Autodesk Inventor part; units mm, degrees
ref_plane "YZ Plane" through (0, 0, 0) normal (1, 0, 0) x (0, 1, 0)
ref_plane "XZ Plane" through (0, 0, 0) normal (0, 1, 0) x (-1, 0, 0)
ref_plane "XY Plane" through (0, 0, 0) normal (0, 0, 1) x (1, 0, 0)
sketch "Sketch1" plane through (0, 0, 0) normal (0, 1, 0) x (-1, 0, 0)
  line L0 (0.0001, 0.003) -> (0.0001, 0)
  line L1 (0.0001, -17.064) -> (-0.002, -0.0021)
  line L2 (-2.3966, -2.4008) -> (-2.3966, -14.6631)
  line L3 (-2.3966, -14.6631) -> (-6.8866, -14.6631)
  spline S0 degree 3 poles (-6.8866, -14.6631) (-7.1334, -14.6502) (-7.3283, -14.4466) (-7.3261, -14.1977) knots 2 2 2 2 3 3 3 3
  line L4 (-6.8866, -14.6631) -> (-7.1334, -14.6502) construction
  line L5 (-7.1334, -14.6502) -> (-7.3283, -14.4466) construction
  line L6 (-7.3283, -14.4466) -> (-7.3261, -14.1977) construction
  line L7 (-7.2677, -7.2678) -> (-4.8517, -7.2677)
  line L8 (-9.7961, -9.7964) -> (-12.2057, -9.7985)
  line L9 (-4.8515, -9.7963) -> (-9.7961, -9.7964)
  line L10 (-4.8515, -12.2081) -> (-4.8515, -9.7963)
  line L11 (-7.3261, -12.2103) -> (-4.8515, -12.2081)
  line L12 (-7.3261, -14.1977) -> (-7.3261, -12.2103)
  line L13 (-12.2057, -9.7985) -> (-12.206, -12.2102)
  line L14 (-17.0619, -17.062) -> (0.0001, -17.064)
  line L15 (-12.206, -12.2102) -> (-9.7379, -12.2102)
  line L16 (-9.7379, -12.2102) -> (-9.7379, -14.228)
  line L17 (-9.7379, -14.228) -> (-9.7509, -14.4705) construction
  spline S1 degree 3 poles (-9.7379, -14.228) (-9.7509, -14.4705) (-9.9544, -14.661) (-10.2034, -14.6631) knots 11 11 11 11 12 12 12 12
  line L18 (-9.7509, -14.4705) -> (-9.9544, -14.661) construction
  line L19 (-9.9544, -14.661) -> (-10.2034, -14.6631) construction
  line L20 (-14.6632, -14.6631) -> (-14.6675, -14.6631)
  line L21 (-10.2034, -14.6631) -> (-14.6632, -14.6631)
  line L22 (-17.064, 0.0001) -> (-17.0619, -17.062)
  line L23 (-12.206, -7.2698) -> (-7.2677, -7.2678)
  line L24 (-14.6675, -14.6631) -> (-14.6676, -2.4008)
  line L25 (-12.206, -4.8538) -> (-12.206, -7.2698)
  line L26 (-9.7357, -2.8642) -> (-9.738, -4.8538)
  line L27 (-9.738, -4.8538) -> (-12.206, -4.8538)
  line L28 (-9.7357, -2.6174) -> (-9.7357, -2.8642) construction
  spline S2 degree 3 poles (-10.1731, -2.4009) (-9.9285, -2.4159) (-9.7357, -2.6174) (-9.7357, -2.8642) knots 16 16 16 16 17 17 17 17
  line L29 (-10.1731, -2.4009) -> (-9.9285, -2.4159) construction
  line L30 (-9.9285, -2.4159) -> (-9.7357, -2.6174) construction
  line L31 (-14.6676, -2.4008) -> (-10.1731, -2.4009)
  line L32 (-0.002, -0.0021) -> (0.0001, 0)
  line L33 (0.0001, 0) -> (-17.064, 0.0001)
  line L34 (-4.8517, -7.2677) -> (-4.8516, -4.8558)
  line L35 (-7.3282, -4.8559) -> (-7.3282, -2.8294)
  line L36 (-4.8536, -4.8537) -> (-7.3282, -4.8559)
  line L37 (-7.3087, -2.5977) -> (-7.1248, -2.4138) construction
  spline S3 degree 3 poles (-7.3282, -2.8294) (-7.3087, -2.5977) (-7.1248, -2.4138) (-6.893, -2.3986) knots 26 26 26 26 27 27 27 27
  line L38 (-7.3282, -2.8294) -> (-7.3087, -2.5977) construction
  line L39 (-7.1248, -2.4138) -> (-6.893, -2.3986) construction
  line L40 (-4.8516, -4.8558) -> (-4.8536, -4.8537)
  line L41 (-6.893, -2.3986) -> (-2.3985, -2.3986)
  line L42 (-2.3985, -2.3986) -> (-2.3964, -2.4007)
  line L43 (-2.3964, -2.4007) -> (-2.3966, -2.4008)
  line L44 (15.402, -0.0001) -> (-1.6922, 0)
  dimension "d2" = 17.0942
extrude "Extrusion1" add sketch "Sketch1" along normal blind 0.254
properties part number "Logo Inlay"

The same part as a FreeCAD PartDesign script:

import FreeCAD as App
import Part
import Sketcher
from FreeCAD import Vector
Q = App.Units.Quantity


def add_polygon(sketch, points):
    """Adds a closed chain of lines whose ends are joined by coincident constraints."""
    first, n = sketch.GeometryCount, len(points)
    for a, b in zip(points, points[1:] + points[:1]):
        sketch.addGeometry(Part.LineSegment(App.Vector(*a, 0), App.Vector(*b, 0)), False)
    for i in range(n):
        sketch.addConstraint(Sketcher.Constraint("Coincident", first + i, 2, first + (i + 1) % n, 1))

doc = App.newDocument("Part")
body = doc.addObject("PartDesign::Body", "Body")

# Sketch on XZ plane
sketch1 = body.newObject("Sketcher::SketchObject", "Sketch")
sketch1.AttachmentSupport = (doc.getObject("XZ_Plane"), [""])
sketch1.MapMode = "FlatFace"
add_polygon(sketch1, [(17.0619, -17.062), (-0.0001, -17.064), (0.002, -0.0021), (-0.0001, 0), (17.064, 0.0001)])  # lines 0-4
sketch1.addGeometry(Part.LineSegment(Vector(2.3985, -2.3986, 0), Vector(2.3966, -2.4008, 0)), False)  # 5
sketch1.addGeometry(Part.LineSegment(Vector(2.3966, -2.4008, 0), Vector(2.3966, -14.6631, 0)), False)  # 6
sketch1.addGeometry(Part.LineSegment(Vector(2.3966, -14.6631, 0), Vector(6.8866, -14.6631, 0)), False)  # 7
sketch1.addGeometry(Part.BSplineCurve([Vector(6.8866, -14.6631, 0), Vector(7.1334, -14.6502, 0), Vector(7.3283, -14.4466, 0), Vector(7.3261, -14.1977, 0)], [4, 4], [2, 3], False, 3, [1, 1, 1, 1], False), False)  # 8
sketch1.addGeometry(Part.LineSegment(Vector(7.3261, -14.1977, 0), Vector(7.3261, -12.2103, 0)), False)  # 9
sketch1.addGeometry(Part.LineSegment(Vector(7.3261, -12.2103, 0), Vector(4.8515, -12.2081, 0)), False)  # 10
sketch1.addGeometry(Part.LineSegment(Vector(4.8515, -12.2081, 0), Vector(4.8515, -9.7963, 0)), False)  # 11
sketch1.addGeometry(Part.LineSegment(Vector(4.8515, -9.7963, 0), Vector(9.7961, -9.7964, 0)), False)  # 12
sketch1.addGeometry(Part.LineSegment(Vector(9.7961, -9.7964, 0), Vector(12.2057, -9.7985, 0)), False)  # 13
sketch1.addGeometry(Part.LineSegment(Vector(12.2057, -9.7985, 0), Vector(12.206, -12.2102, 0)), False)  # 14
sketch1.addGeometry(Part.LineSegment(Vector(12.206, -12.2102, 0), Vector(9.7379, -12.2102, 0)), False)  # 15
sketch1.addGeometry(Part.LineSegment(Vector(9.7379, -12.2102, 0), Vector(9.7379, -14.228, 0)), False)  # 16
sketch1.addGeometry(Part.BSplineCurve([Vector(9.7379, -14.228, 0), Vector(9.7509, -14.4705, 0), Vector(9.9544, -14.661, 0), Vector(10.2034, -14.6631, 0)], [4, 4], [11, 12], False, 3, [1, 1, 1, 1], False), False)  # 17
sketch1.addGeometry(Part.LineSegment(Vector(10.2034, -14.6631, 0), Vector(14.6675, -14.6631, 0)), False)  # 18
sketch1.addGeometry(Part.LineSegment(Vector(14.6675, -14.6631, 0), Vector(14.6676, -2.4008, 0)), False)  # 19
sketch1.addGeometry(Part.LineSegment(Vector(14.6676, -2.4008, 0), Vector(10.1731, -2.4009, 0)), False)  # 20
sketch1.addGeometry(Part.BSplineCurve([Vector(10.1731, -2.4009, 0), Vector(9.9285, -2.4159, 0), Vector(9.7357, -2.6174, 0), Vector(9.7357, -2.8642, 0)], [4, 4], [16, 17], False, 3, [1, 1, 1, 1], False), False)  # 21
sketch1.addGeometry(Part.LineSegment(Vector(9.7357, -2.8642, 0), Vector(9.738, -4.8538, 0)), False)  # 22
sketch1.addGeometry(Part.LineSegment(Vector(9.738, -4.8538, 0), Vector(12.206, -4.8538, 0)), False)  # 23
sketch1.addGeometry(Part.LineSegment(Vector(12.206, -4.8538, 0), Vector(12.206, -7.2698, 0)), False)  # 24
sketch1.addGeometry(Part.LineSegment(Vector(12.206, -7.2698, 0), Vector(7.2677, -7.2678, 0)), False)  # 25
sketch1.addGeometry(Part.LineSegment(Vector(7.2677, -7.2678, 0), Vector(4.8517, -7.2677, 0)), False)  # 26
sketch1.addGeometry(Part.LineSegment(Vector(4.8517, -7.2677, 0), Vector(4.8516, -4.8558, 0)), False)  # 27
sketch1.addGeometry(Part.LineSegment(Vector(4.8516, -4.8558, 0), Vector(4.8536, -4.8537, 0)), False)  # 28
sketch1.addGeometry(Part.LineSegment(Vector(4.8536, -4.8537, 0), Vector(7.3282, -4.8559, 0)), False)  # 29
sketch1.addGeometry(Part.LineSegment(Vector(7.3282, -4.8559, 0), Vector(7.3282, -2.8294, 0)), False)  # 30
sketch1.addGeometry(Part.BSplineCurve([Vector(7.3282, -2.8294, 0), Vector(7.3087, -2.5977, 0), Vector(7.1248, -2.4138, 0), Vector(6.893, -2.3986, 0)], [4, 4], [26, 27], False, 3, [1, 1, 1, 1], False), False)  # 31
sketch1.addGeometry(Part.LineSegment(Vector(6.893, -2.3986, 0), Vector(2.3985, -2.3986, 0)), False)  # 32
sketch1.addConstraint([
    Sketcher.Constraint("Block", 8),
    Sketcher.Constraint("Block", 17),
    Sketcher.Constraint("Block", 21),
    Sketcher.Constraint("Block", 31),
    Sketcher.Constraint("Coincident", 5, 2, 6, 1),
    Sketcher.Constraint("Coincident", 6, 2, 7, 1),
    Sketcher.Constraint("Coincident", 7, 2, 8, 1),
    Sketcher.Constraint("Coincident", 8, 2, 9, 1),
    Sketcher.Constraint("Coincident", 9, 2, 10, 1),
    Sketcher.Constraint("Coincident", 10, 2, 11, 1),
    Sketcher.Constraint("Coincident", 11, 2, 12, 1),
    Sketcher.Constraint("Coincident", 12, 2, 13, 1),
    Sketcher.Constraint("Coincident", 13, 2, 14, 1),
    Sketcher.Constraint("Coincident", 14, 2, 15, 1),
    Sketcher.Constraint("Coincident", 15, 2, 16, 1),
    Sketcher.Constraint("Coincident", 16, 2, 17, 1),
    Sketcher.Constraint("Coincident", 17, 2, 18, 1),
    Sketcher.Constraint("Coincident", 18, 2, 19, 1),
    Sketcher.Constraint("Coincident", 19, 2, 20, 1),
    Sketcher.Constraint("Coincident", 20, 2, 21, 1),
    Sketcher.Constraint("Coincident", 21, 2, 22, 1),
    Sketcher.Constraint("Coincident", 22, 2, 23, 1),
    Sketcher.Constraint("Coincident", 23, 2, 24, 1),
    Sketcher.Constraint("Coincident", 24, 2, 25, 1),
    Sketcher.Constraint("Coincident", 25, 2, 26, 1),
    Sketcher.Constraint("Coincident", 26, 2, 27, 1),
    Sketcher.Constraint("Coincident", 27, 2, 28, 1),
    Sketcher.Constraint("Coincident", 28, 2, 29, 1),
    Sketcher.Constraint("Coincident", 29, 2, 30, 1),
    Sketcher.Constraint("Coincident", 30, 2, 31, 1),
    Sketcher.Constraint("Coincident", 31, 2, 32, 1),
    Sketcher.Constraint("Coincident", 32, 2, 5, 1),
    Sketcher.Constraint("Horizontal", 3),
    Sketcher.Constraint("Vertical", 6),
    Sketcher.Constraint("Horizontal", 7),
    Sketcher.Constraint("Vertical", 9),
    Sketcher.Constraint("Vertical", 11),
    Sketcher.Constraint("Horizontal", 12),
    Sketcher.Constraint("Horizontal", 15),
    Sketcher.Constraint("Vertical", 16),
    Sketcher.Constraint("Horizontal", 18),
    Sketcher.Constraint("Vertical", 19),
    Sketcher.Constraint("Horizontal", 20),
    Sketcher.Constraint("Horizontal", 23),
    Sketcher.Constraint("Vertical", 24),
    Sketcher.Constraint("Horizontal", 26),
    Sketcher.Constraint("Vertical", 27),
    Sketcher.Constraint("Vertical", 30),
    Sketcher.Constraint("Horizontal", 32),
    Sketcher.Constraint("Coincident", 2, 2, -1, 1),
    Sketcher.Constraint("PointOnObject", 0, 2, -2),
    Sketcher.Constraint("DistanceX", 13, 2, 14, 2, Q("0 in")),
    Sketcher.Constraint("DistanceY", 20, 2, 5, 2, Q("0 in")),
    Sketcher.Constraint("DistanceX", 13, 2, 23, 2, Q("0 in")),
    Sketcher.Constraint("DistanceX", 11, 2, 26, 2, Q("0 in")),
    Sketcher.Constraint("DistanceX", -1, 1, 10, 2, Q("0.191 in")),
    Sketcher.Constraint("DistanceY", 4, 2, 9, 2, Q("0.191 in")),
    Sketcher.Constraint("DistanceX", 3, 1, 3, 2, Q("0.671811 in")),
    Sketcher.Constraint("DistanceX", 7, 1, 7, 2, Q("4.49 mm")),
    Sketcher.Constraint("DistanceX", 12, 1, 12, 2, Q("4.9446 mm")),
    Sketcher.Constraint("DistanceX", 15, 2, 15, 1, Q("2.468 mm")),
    Sketcher.Constraint("DistanceX", 18, 1, 18, 2, Q("4.464 mm")),
    Sketcher.Constraint("DistanceX", 23, 1, 23, 2, Q("2.468 mm")),
    Sketcher.Constraint("DistanceX", 26, 2, 26, 1, Q("2.416 mm")),
    Sketcher.Constraint("DistanceX", 32, 2, 32, 1, Q("4.4945 mm")),
    Sketcher.Constraint("DistanceY", 9, 1, 9, 2, Q("1.9874 mm")),
    Sketcher.Constraint("DistanceY", 11, 1, 11, 2, Q("2.4118 mm")),
    Sketcher.Constraint("DistanceY", 16, 2, 16, 1, Q("2.0178 mm")),
    Sketcher.Constraint("DistanceY", 24, 2, 24, 1, Q("2.416 mm")),
    Sketcher.Constraint("DistanceY", 27, 1, 27, 2, Q("2.412 mm")),
    Sketcher.Constraint("DistanceY", 30, 1, 30, 2, Q("2.0265 mm")),
    Sketcher.Constraint("DistanceY", 0, 2, -1, 1, Q("0.6718 in")),
    Sketcher.Constraint("DistanceY", 22, 2, -1, 1, Q("0.1911 in")),
    Sketcher.Constraint("DistanceY", 28, 2, -1, 1, Q("0.1911 in")),
    Sketcher.Constraint("DistanceY", 6, 2, 1, 2, Q("0.5772 in")),
    Sketcher.Constraint("DistanceX", 7, 2, 4, 2, Q("0.4006 in")),
    Sketcher.Constraint("DistanceY", 7, 2, 11, 2, Q("0.1916 in")),
    Sketcher.Constraint("DistanceY", 10, 2, 26, 2, Q("0.1945 in")),
    Sketcher.Constraint("DistanceX", 28, 2, 22, 2, Q("0.1923 in")),
    Sketcher.Constraint("Distance", 2, Q("0.003 mm")),
    Sketcher.Constraint("Distance", 14, Q("2.4117 mm")),
])
pad1 = body.newObject("PartDesign::Pad", "Pad")
pad1.Profile = sketch1
pad1.Length = Q("0.01 in")
pad1.Reversed = True

doc.recompute()
